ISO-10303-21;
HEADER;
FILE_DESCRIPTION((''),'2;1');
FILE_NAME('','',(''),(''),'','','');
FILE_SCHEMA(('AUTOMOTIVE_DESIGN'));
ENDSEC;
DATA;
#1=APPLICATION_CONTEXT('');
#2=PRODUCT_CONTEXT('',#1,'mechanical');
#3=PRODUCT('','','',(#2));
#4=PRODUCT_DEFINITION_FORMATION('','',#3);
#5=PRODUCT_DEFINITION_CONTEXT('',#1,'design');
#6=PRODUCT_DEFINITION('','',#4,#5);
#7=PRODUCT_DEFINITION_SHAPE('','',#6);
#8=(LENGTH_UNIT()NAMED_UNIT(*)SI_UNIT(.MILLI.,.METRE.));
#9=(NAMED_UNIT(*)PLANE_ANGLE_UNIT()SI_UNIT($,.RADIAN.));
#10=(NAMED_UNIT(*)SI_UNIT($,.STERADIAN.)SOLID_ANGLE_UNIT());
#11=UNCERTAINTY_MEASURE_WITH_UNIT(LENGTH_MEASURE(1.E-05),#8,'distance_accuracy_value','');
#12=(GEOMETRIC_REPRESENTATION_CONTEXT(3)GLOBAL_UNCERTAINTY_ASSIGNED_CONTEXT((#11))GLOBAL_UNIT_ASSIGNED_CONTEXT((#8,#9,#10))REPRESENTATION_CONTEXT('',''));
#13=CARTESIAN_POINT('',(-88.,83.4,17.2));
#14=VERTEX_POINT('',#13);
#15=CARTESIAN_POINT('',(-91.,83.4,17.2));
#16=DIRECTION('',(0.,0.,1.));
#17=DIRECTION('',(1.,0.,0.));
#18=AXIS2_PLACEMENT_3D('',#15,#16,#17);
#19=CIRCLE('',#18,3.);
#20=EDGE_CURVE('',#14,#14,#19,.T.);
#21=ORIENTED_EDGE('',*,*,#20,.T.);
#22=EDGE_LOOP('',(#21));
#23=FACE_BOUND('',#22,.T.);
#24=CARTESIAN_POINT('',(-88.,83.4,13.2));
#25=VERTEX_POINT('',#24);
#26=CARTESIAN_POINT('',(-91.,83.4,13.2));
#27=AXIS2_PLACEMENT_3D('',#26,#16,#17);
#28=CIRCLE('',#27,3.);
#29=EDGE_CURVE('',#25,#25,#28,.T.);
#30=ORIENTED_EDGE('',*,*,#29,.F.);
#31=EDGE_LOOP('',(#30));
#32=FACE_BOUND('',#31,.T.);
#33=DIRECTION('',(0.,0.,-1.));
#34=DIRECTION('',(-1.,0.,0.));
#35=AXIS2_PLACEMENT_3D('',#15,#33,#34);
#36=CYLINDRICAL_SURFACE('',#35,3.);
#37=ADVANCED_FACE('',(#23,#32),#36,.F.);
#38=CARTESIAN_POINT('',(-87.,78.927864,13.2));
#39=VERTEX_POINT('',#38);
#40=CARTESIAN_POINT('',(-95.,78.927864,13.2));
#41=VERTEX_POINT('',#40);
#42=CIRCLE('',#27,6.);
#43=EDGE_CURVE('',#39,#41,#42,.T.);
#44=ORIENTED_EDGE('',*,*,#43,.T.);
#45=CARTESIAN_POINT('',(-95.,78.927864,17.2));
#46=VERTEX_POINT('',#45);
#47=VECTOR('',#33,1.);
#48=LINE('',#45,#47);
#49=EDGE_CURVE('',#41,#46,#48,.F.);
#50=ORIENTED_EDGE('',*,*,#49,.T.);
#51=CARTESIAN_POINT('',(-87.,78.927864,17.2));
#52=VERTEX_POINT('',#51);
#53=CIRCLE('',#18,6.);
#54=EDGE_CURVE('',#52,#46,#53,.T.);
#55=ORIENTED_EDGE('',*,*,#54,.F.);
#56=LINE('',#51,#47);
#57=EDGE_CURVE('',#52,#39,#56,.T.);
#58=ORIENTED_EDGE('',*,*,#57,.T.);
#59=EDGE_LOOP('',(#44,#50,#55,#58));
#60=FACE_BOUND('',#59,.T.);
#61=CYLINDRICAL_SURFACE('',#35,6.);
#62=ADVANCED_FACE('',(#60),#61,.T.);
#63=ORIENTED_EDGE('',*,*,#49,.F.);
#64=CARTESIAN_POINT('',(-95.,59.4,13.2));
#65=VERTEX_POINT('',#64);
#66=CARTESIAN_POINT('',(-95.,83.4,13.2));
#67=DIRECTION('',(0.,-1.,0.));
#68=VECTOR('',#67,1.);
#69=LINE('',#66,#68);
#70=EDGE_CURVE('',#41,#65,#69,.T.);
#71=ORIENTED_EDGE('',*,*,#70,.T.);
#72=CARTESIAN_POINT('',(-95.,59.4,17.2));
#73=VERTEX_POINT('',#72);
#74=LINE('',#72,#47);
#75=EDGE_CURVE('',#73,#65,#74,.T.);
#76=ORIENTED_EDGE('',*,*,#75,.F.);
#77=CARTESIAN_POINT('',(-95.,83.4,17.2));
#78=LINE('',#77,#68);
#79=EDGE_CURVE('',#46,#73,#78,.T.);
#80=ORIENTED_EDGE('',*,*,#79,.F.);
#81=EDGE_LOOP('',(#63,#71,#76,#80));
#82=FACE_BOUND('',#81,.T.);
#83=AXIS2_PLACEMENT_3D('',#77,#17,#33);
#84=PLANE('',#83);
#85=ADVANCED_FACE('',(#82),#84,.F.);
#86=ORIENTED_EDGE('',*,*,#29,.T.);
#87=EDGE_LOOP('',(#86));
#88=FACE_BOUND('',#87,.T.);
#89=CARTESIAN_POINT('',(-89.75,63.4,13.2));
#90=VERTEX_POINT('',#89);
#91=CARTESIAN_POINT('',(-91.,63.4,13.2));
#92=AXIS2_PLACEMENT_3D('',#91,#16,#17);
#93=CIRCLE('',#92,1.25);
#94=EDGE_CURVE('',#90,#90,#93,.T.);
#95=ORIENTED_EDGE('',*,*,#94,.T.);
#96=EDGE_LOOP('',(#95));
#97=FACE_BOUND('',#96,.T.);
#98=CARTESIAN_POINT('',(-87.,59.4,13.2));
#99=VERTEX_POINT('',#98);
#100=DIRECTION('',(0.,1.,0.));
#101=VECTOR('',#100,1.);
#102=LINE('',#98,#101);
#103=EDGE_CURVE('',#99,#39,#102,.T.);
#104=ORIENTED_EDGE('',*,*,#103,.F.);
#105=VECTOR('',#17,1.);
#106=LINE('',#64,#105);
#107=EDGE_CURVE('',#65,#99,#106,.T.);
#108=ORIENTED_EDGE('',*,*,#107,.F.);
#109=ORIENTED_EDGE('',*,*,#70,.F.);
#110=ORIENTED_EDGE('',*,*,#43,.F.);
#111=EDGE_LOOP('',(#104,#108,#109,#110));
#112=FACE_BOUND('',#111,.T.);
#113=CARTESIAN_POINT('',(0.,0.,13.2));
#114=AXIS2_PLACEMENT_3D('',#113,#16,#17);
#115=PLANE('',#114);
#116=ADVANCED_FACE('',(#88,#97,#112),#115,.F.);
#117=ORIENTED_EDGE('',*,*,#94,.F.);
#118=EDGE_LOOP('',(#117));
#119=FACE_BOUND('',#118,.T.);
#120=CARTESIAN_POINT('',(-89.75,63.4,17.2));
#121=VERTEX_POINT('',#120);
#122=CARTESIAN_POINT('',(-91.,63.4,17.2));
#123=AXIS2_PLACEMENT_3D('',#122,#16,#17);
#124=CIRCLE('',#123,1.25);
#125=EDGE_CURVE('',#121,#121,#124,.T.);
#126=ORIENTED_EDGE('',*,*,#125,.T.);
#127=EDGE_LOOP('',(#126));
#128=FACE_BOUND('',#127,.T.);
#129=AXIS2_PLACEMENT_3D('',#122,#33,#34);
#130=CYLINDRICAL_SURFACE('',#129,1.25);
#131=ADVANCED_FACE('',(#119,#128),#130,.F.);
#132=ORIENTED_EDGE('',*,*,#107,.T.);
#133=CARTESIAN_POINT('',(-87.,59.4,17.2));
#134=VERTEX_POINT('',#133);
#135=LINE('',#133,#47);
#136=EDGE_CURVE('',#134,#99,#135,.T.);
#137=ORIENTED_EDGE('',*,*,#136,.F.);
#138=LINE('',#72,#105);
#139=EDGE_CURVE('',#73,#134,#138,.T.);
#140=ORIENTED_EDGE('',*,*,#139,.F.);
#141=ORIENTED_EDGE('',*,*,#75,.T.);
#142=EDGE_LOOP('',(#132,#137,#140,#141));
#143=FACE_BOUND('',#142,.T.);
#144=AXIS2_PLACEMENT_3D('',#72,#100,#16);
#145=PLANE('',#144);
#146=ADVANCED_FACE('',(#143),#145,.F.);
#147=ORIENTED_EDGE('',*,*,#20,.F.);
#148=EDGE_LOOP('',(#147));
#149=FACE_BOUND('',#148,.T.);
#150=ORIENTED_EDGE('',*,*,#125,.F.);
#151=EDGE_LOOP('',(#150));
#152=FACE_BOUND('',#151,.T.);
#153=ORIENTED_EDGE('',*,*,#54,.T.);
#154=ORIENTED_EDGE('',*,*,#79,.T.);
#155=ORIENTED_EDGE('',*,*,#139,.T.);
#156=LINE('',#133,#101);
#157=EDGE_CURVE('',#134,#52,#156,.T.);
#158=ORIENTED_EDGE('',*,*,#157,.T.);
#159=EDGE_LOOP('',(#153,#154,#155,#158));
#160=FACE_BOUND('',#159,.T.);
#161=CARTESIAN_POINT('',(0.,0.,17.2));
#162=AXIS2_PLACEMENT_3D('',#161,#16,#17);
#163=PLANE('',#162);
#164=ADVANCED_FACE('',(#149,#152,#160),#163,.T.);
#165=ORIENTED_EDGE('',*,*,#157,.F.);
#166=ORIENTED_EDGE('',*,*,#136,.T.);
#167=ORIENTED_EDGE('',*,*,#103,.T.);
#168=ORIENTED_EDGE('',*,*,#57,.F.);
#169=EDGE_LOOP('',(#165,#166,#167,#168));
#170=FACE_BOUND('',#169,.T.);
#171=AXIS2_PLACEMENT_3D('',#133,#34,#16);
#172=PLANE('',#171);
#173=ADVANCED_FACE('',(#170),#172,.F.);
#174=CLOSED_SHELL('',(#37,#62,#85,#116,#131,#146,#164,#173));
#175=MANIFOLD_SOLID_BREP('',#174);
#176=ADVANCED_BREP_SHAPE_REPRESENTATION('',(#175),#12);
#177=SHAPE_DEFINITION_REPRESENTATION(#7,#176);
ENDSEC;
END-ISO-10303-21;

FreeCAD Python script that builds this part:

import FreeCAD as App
import Part
import Sketcher

doc = App.newDocument("Part")
body = doc.addObject("PartDesign::Body", "Body")

# Sketch on XY plane
sketch1 = body.newObject("Sketcher::SketchObject", "Sketch")
sketch1.AttachmentSupport = (doc.getObject("XY_Plane"), [""])
sketch1.MapMode = "FlatFace"
sketch1.AttachmentOffset = App.Placement(App.Vector(0, 0, 13.2), App.Rotation())
sketch1.addGeometry(Part.LineSegment(App.Vector(-95, 83.4, 0), App.Vector(-95, 59.4, 0)), False)
sketch1.addGeometry(Part.LineSegment(App.Vector(-95, 59.4, 0), App.Vector(-87, 59.4, 0)), False)
sketch1.addGeometry(Part.LineSegment(App.Vector(-87, 59.4, 0), App.Vector(-87, 83.4, 0)), False)
sketch1.addGeometry(Part.LineSegment(App.Vector(-87, 83.4, 0), App.Vector(-95, 83.4, 0)), False)
sketch1.addConstraint(Sketcher.Constraint("Coincident", 0, 2, 1, 1))
sketch1.addConstraint(Sketcher.Constraint("Coincident", 1, 2, 2, 1))
sketch1.addConstraint(Sketcher.Constraint("Coincident", 2, 2, 3, 1))
sketch1.addConstraint(Sketcher.Constraint("Coincident", 3, 2, 0, 1))
sketch1.addConstraint(Sketcher.Constraint("Vertical", 0))
sketch1.addConstraint(Sketcher.Constraint("Horizontal", 1))
sketch1.addConstraint(Sketcher.Constraint("Vertical", 2))
sketch1.addConstraint(Sketcher.Constraint("Horizontal", 3))
sketch1.addConstraint(Sketcher.Constraint("DistanceX", 1, 1, 1, 2, 8.0))
sketch1.addConstraint(Sketcher.Constraint("DistanceY", 0, 2, 0, 1, 24.0))
sketch1.addConstraint(Sketcher.Constraint("DistanceX", 0, 2, -1, 1, 95.0))
sketch1.addConstraint(Sketcher.Constraint("DistanceY", -1, 1, 0, 2, 59.4))
pad1 = body.newObject("PartDesign::Pad", "Pad")
pad1.Profile = sketch1
pad1.Length = 4

# Sketch on XY plane
sketch2 = body.newObject("Sketcher::SketchObject", "Sketch001")
sketch2.AttachmentSupport = (doc.getObject("XY_Plane"), [""])
sketch2.MapMode = "FlatFace"
sketch2.AttachmentOffset = App.Placement(App.Vector(0, 0, 13.2), App.Rotation())
sketch2.addGeometry(Part.Circle(App.Vector(-91, 83.4, 0), App.Vector(0, 0, 1), 6), False)
sketch2.addConstraint(Sketcher.Constraint("Diameter", 0, 12.0))
sketch2.addConstraint(Sketcher.Constraint("DistanceX", 0, 3, -1, 1, 91.0))
sketch2.addConstraint(Sketcher.Constraint("DistanceY", -1, 1, 0, 3, 83.4))
pad2 = body.newObject("PartDesign::Pad", "Pad001")
pad2.Profile = sketch2
pad2.Length = 4

# Sketch on XY plane
sketch3 = body.newObject("Sketcher::SketchObject", "Sketch002")
sketch3.AttachmentSupport = (doc.getObject("XY_Plane"), [""])
sketch3.MapMode = "FlatFace"
sketch3.AttachmentOffset = App.Placement(App.Vector(0, 0, 13.2), App.Rotation())
sketch3.addGeometry(Part.Circle(App.Vector(-91, 83.4, 0), App.Vector(0, 0, 1), 3), False)
sketch3.addConstraint(Sketcher.Constraint("Diameter", 0, 6.0))
sketch3.addConstraint(Sketcher.Constraint("DistanceX", 0, 3, -1, 1, 91.0))
sketch3.addConstraint(Sketcher.Constraint("DistanceY", -1, 1, 0, 3, 83.4))
pocket1 = body.newObject("PartDesign::Pocket", "Pocket")
pocket1.Profile = sketch3
pocket1.Length = 4
pocket1.Reversed = True

# Sketch on XY plane
sketch4 = body.newObject("Sketcher::SketchObject", "Sketch003")
sketch4.AttachmentSupport = (doc.getObject("XY_Plane"), [""])
sketch4.MapMode = "FlatFace"
sketch4.AttachmentOffset = App.Placement(App.Vector(0, 0, 13.2), App.Rotation())
sketch4.addGeometry(Part.Circle(App.Vector(-91, 63.4, 0), App.Vector(0, 0, 1), 1.25), False)
sketch4.addConstraint(Sketcher.Constraint("Diameter", 0, 2.5))
sketch4.addConstraint(Sketcher.Constraint("DistanceX", 0, 3, -1, 1, 91.0))
sketch4.addConstraint(Sketcher.Constraint("DistanceY", -1, 1, 0, 3, 63.4))
pocket2 = body.newObject("PartDesign::Pocket", "Pocket001")
pocket2.Profile = sketch4
pocket2.Length = 4
pocket2.Reversed = True

doc.recompute()
